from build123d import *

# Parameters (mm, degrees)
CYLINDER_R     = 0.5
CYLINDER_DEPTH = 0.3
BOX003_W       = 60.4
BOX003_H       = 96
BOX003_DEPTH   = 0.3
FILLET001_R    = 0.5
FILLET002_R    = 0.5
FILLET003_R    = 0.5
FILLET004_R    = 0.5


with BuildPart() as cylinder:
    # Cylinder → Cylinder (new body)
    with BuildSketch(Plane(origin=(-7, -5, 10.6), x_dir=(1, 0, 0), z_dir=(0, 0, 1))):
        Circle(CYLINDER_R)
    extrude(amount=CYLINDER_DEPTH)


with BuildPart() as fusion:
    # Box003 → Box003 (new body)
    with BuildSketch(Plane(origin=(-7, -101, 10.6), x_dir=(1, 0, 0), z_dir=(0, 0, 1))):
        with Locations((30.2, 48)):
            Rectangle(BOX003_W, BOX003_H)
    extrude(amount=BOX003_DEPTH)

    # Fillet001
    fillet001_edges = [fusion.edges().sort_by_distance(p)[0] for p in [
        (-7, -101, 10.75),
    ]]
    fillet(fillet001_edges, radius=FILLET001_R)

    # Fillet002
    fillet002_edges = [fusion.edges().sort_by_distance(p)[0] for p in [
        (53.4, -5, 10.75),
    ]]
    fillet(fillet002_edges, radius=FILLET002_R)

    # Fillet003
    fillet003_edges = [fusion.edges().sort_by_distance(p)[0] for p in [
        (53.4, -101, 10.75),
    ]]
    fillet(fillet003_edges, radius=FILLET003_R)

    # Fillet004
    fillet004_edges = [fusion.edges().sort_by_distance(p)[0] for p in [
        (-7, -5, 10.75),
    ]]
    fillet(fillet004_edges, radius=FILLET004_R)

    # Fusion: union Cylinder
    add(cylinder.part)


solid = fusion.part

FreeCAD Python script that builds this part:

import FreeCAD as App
import Part
import Sketcher

V = App.Vector
Q = App.Units.Quantity


def edges_at(feature, points):
    """Names of the edges that pass closest to the given points."""
    edges = feature.Shape.Edges
    near = lambda p: min(range(len(edges)), key=lambda i: edges[i].distToShape(Part.Vertex(*p))[0])
    return sorted({f"Edge{near(p) + 1}" for p in points})


def add_polygon(sketch, points):
    """Adds a closed chain of lines whose ends are joined by coincident constraints."""
    first, n = sketch.GeometryCount, len(points)
    for a, b in zip(points, points[1:] + points[:1]):
        sketch.addGeometry(Part.LineSegment(App.Vector(*a, 0), App.Vector(*b, 0)), False)
    for i in range(n):
        sketch.addConstraint(Sketcher.Constraint("Coincident", first + i, 2, first + (i + 1) % n, 1))

doc = App.newDocument("Part")
body = doc.addObject("PartDesign::Body", "Body")

# Sketch on XY plane
sketch1 = body.newObject("Sketcher::SketchObject", "Sketch")
sketch1.AttachmentSupport = (doc.getObject("XY_Plane"), [""])
sketch1.MapMode = "FlatFace"
sketch1.AttachmentOffset = App.Placement(V(0, 0, 10.6), App.Rotation())
sketch1.addGeometry(Part.Circle(V(-7, -5, 0), V(0, 0, 1), 0.5), False)
sketch1.addConstraint([
    Sketcher.Constraint("Diameter", 0, Q("1 mm")),
    Sketcher.Constraint("DistanceX", 0, 3, -1, 1, Q("7 mm")),
    Sketcher.Constraint("DistanceY", 0, 3, -1, 1, Q("5 mm")),
])
pad1 = body.newObject("PartDesign::Pad", "Pad")
pad1.Profile = sketch1
pad1.Length = 0.3
body2 = doc.addObject("PartDesign::Body", "Body001")

# Sketch on XY plane
sketch2 = body2.newObject("Sketcher::SketchObject", "Sketch001")
sketch2.AttachmentSupport = (doc.getObject("XY_Plane001"), [""])
sketch2.MapMode = "FlatFace"
sketch2.AttachmentOffset = App.Placement(V(0, 0, 10.6), App.Rotation())
add_polygon(sketch2, [(-7, -5), (-7, -101), (53, -101), (53, -5)])  # lines 0-3
sketch2.addConstraint([
    Sketcher.Constraint("Vertical", 0),
    Sketcher.Constraint("Horizontal", 1),
    Sketcher.Constraint("Vertical", 2),
    Sketcher.Constraint("Horizontal", 3),
    Sketcher.Constraint("DistanceY", 0, 2, 0, 1, Q("96 mm")),
    Sketcher.Constraint("DistanceX", 1, 1, 1, 2, Q("60.4 mm")),
    Sketcher.Constraint("DistanceX", 0, 2, -1, 1, Q("7 mm")),
    Sketcher.Constraint("DistanceY", 0, 2, -1, 1, Q("101 mm")),
])
pad2 = body2.newObject("PartDesign::Pad", "Pad001")
pad2.Profile = sketch2
pad2.Length = 0.3
doc.recompute()

fillet = body2.newObject("PartDesign::Fillet", "Fillet")
fillet.Base = (pad2, edges_at(pad2, [(-7, -101, 10.75)]))
fillet.Radius = 0.5
doc.recompute()

fillet2 = body2.newObject("PartDesign::Fillet", "Fillet001")
fillet2.Base = (fillet, edges_at(fillet, [(53.4, -5, 10.75)]))
fillet2.Radius = 0.5
doc.recompute()

fillet3 = body2.newObject("PartDesign::Fillet", "Fillet002")
fillet3.Base = (fillet2, edges_at(fillet2, [(53.4, -101, 10.75)]))
fillet3.Radius = 0.5
doc.recompute()

fillet4 = body2.newObject("PartDesign::Fillet", "Fillet003")
fillet4.Base = (fillet3, edges_at(fillet3, [(-7, -5, 10.75)]))
fillet4.Radius = 0.5
doc.recompute()

boolean = body2.newObject("PartDesign::Boolean", "Boolean")
boolean.Type = "Fuse"
boolean.addObjects([body])

doc.recompute()
